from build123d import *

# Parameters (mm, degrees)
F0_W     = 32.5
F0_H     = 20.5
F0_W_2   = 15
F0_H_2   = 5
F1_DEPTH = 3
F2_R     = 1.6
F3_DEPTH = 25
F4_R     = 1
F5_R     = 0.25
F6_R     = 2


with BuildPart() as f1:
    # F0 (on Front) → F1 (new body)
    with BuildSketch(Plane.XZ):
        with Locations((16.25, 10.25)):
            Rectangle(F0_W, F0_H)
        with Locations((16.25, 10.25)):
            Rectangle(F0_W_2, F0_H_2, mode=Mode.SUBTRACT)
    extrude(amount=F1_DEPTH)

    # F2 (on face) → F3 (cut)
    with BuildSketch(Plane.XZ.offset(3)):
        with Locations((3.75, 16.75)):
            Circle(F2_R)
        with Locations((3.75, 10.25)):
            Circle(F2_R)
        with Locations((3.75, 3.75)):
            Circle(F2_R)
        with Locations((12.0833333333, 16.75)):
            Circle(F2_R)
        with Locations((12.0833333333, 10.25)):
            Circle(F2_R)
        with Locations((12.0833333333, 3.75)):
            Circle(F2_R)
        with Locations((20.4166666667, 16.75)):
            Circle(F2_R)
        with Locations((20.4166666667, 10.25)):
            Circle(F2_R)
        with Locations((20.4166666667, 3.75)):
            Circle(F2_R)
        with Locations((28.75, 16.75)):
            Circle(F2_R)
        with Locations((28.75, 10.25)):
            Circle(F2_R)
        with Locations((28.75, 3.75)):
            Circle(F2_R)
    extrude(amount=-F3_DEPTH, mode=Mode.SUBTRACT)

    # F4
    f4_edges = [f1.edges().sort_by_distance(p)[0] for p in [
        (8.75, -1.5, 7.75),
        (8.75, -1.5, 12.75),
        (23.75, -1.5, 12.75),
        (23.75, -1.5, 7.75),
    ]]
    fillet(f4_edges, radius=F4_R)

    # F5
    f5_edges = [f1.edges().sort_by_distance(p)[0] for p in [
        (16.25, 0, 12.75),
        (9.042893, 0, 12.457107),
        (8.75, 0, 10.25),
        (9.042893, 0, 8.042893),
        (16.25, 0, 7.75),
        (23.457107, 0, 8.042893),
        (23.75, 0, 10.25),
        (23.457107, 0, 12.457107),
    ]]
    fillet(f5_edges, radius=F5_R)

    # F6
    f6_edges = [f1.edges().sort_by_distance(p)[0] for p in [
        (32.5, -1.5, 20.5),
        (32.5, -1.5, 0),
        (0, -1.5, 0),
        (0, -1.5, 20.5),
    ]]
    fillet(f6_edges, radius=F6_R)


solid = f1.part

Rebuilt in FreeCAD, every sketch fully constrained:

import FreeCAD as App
import Part
import Sketcher

V = App.Vector
Q = App.Units.Quantity


def edges_at(feature, points):
    """Names of the edges that pass closest to the given points."""
    edges = feature.Shape.Edges
    near = lambda p: min(range(len(edges)), key=lambda i: edges[i].distToShape(Part.Vertex(*p))[0])
    return sorted({f"Edge{near(p) + 1}" for p in points})

doc = App.newDocument("Part")
body = doc.addObject("PartDesign::Body", "Body")

sketch1 = doc.addObject("Sketcher::SketchObject", "Sketch")
body.addObject(sketch1)
sketch1.AttachmentSupport = (doc.XZ_Plane, [""])
sketch1.MapMode = "FlatFace"
sketch1.addGeometry([
    Part.LineSegment(V(0, 20.5, 0), V(0, 0, 0)),
    Part.LineSegment(V(0, 0, 0), V(32.5, 0, 0)),
    Part.LineSegment(V(32.5, 0, 0), V(32.5, 20.5, 0)),
    Part.LineSegment(V(32.5, 20.5, 0), V(0, 20.5, 0)),
    Part.LineSegment(V(23.75, 7.75, 0), V(8.75, 7.75, 0)),
    Part.LineSegment(V(8.75, 7.75, 0), V(8.75, 12.75, 0)),
    Part.LineSegment(V(8.75, 12.75, 0), V(23.75, 12.75, 0)),
    Part.LineSegment(V(23.75, 12.75, 0), V(23.75, 7.75, 0)),
], False)
sketch1.addConstraint([
    Sketcher.Constraint("Coincident", 0, 2, 1, 1),
    Sketcher.Constraint("Coincident", 1, 2, 2, 1),
    Sketcher.Constraint("Coincident", 2, 2, 3, 1),
    Sketcher.Constraint("Coincident", 3, 2, 0, 1),
    Sketcher.Constraint("Coincident", 4, 2, 5, 1),
    Sketcher.Constraint("Coincident", 5, 2, 6, 1),
    Sketcher.Constraint("Coincident", 6, 2, 7, 1),
    Sketcher.Constraint("Coincident", 7, 2, 4, 1),
    Sketcher.Constraint("Vertical", 0),
    Sketcher.Constraint("Horizontal", 1),
    Sketcher.Constraint("Vertical", 2),
    Sketcher.Constraint("Horizontal", 3),
    Sketcher.Constraint("Horizontal", 4),
    Sketcher.Constraint("Vertical", 5),
    Sketcher.Constraint("Horizontal", 6),
    Sketcher.Constraint("Vertical", 7),
    Sketcher.Constraint("Coincident", 0, 2, -1, 1),
    Sketcher.Constraint("DistanceX", 4, 2, 4, 1, Q("15 mm")),
    Sketcher.Constraint("DistanceY", 5, 1, 5, 2, Q("5 mm")),
    Sketcher.Constraint("DistanceX", 1, 1, 1, 2, Q("32.5 mm")),
    Sketcher.Constraint("DistanceY", 0, 2, 0, 1, Q("20.5 mm")),
    Sketcher.Constraint("DistanceX", -1, 1, 4, 2, Q("8.75 mm")),
    Sketcher.Constraint("DistanceY", -1, 1, 4, 2, Q("7.75 mm")),
])
pad1 = doc.addObject("PartDesign::Pad", "Pad")
body.addObject(pad1)
pad1.Profile = sketch1
pad1.Length = 3

sketch2 = doc.addObject("Sketcher::SketchObject", "Sketch001")
body.addObject(sketch2)
sketch2.AttachmentSupport = (doc.XZ_Plane, [""])
sketch2.MapMode = "FlatFace"
sketch2.AttachmentOffset = App.Placement(V(0, 0, 3), App.Rotation())
sketch2.addGeometry([
    Part.Circle(V(3.75, 16.75, 0), V(0, 0, 1), 1.6),
    Part.Circle(V(3.75, 10.25, 0), V(0, 0, 1), 1.6),
    Part.Circle(V(3.75, 3.75, 0), V(0, 0, 1), 1.6),
    Part.Circle(V(12.083333, 16.75, 0), V(0, 0, 1), 1.6),
    Part.Circle(V(12.083333, 10.25, 0), V(0, 0, 1), 1.6),
    Part.Circle(V(12.083333, 3.75, 0), V(0, 0, 1), 1.6),
    Part.Circle(V(20.416667, 16.75, 0), V(0, 0, 1), 1.6),
    Part.Circle(V(20.416667, 10.25, 0), V(0, 0, 1), 1.6),
    Part.Circle(V(20.416667, 3.75, 0), V(0, 0, 1), 1.6),
    Part.Circle(V(28.75, 16.75, 0), V(0, 0, 1), 1.6),
    Part.Circle(V(28.75, 10.25, 0), V(0, 0, 1), 1.6),
    Part.Circle(V(28.75, 3.75, 0), V(0, 0, 1), 1.6),
], False)
sketch2.addConstraint([
    Sketcher.Constraint("Equal", 0, 1),
    Sketcher.Constraint("Equal", 1, 2),
    Sketcher.Constraint("Equal", 2, 3),
    Sketcher.Constraint("Equal", 3, 4),
    Sketcher.Constraint("Equal", 4, 5),
    Sketcher.Constraint("Equal", 5, 6),
    Sketcher.Constraint("Equal", 6, 7),
    Sketcher.Constraint("Equal", 7, 8),
    Sketcher.Constraint("Equal", 8, 9),
    Sketcher.Constraint("Equal", 9, 10),
    Sketcher.Constraint("Equal", 10, 11),
    Sketcher.Constraint("Horizontal", 0, 3, 3, 3),
    Sketcher.Constraint("Horizontal", 1, 3, 4, 3),
    Sketcher.Constraint("Horizontal", 2, 3, 5, 3),
    Sketcher.Constraint("Horizontal", 3, 3, 6, 3),
    Sketcher.Constraint("Horizontal", 4, 3, 7, 3),
    Sketcher.Constraint("Horizontal", 5, 3, 8, 3),
    Sketcher.Constraint("Horizontal", 6, 3, 9, 3),
    Sketcher.Constraint("Horizontal", 7, 3, 10, 3),
    Sketcher.Constraint("Horizontal", 8, 3, 11, 3),
    Sketcher.Constraint("Vertical", 0, 3, 1, 3),
    Sketcher.Constraint("Vertical", 1, 3, 2, 3),
    Sketcher.Constraint("Vertical", 3, 3, 4, 3),
    Sketcher.Constraint("Vertical", 4, 3, 5, 3),
    Sketcher.Constraint("Vertical", 6, 3, 7, 3),
    Sketcher.Constraint("Vertical", 7, 3, 8, 3),
    Sketcher.Constraint("Vertical", 9, 3, 10, 3),
    Sketcher.Constraint("Vertical", 10, 3, 11, 3),
    Sketcher.Constraint("Diameter", 0, Q("3.2 mm")),
    Sketcher.Constraint("DistanceY", 2, 3, 0, 3, Q("13 mm")),
    Sketcher.Constraint("DistanceY", 1, 3, 0, 3, Q("6.5 mm")),
    Sketcher.Constraint("DistanceX", -1, 1, 0, 3, Q("3.75 mm")),
    Sketcher.Constraint("DistanceY", -1, 1, 0, 3, Q("16.75 mm")),
    Sketcher.Constraint("DistanceX", -1, 1, 9, 3, Q("28.75 mm")),
    Sketcher.Constraint("DistanceX", -1, 1, 3, 3, Q("12.083333 mm")),
    Sketcher.Constraint("DistanceX", -1, 1, 6, 3, Q("20.416667 mm")),
])
pocket1 = doc.addObject("PartDesign::Pocket", "Pocket")
body.addObject(pocket1)
pocket1.Profile = sketch2
pocket1.Length = 25
doc.recompute()

fillet = doc.addObject("PartDesign::Fillet", "Fillet")
body.addObject(fillet)
fillet.Base = (pocket1, edges_at(pocket1, [
    (8.75, -1.5, 7.75),
    (8.75, -1.5, 12.75),
    (23.75, -1.5, 12.75),
    (23.75, -1.5, 7.75),
]))
fillet.Radius = 1
doc.recompute()

fillet2 = doc.addObject("PartDesign::Fillet", "Fillet001")
body.addObject(fillet2)
fillet2.Base = (fillet, edges_at(fillet, [
    (16.25, 0, 12.75),
    (9.043, 0, 12.457),
    (8.75, 0, 10.25),
    (9.043, 0, 8.043),
    (16.25, 0, 7.75),
    (23.457, 0, 8.043),
    (23.75, 0, 10.25),
    (23.457, 0, 12.457),
]))
fillet2.Radius = 0.25
doc.recompute()

fillet3 = doc.addObject("PartDesign::Fillet", "Fillet002")
body.addObject(fillet3)
fillet3.Base = (fillet2, edges_at(fillet2, [
    (32.5, -1.5, 20.5),
    (32.5, -1.5, 0),
    (0, -1.5, 0),
    (0, -1.5, 20.5),
]))
fillet3.Radius = 2

doc.recompute()
